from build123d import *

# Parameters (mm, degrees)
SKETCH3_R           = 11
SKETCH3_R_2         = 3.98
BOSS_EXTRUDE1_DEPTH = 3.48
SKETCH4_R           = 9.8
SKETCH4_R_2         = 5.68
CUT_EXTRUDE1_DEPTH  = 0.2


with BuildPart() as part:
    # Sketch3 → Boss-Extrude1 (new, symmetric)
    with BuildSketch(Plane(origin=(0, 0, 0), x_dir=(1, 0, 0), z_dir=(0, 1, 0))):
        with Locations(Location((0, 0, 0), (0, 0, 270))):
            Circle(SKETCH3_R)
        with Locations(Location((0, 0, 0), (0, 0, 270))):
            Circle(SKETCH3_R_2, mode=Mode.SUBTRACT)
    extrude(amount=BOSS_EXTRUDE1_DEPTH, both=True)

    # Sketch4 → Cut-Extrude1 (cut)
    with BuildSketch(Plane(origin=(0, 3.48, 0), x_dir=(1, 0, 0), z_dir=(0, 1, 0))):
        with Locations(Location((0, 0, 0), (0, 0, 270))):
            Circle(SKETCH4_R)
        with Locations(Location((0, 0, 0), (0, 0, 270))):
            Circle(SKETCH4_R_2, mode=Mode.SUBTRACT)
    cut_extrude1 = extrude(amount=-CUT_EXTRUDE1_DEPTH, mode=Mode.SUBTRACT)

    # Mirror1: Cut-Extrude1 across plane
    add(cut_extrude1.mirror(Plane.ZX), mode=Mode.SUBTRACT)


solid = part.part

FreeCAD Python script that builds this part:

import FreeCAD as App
import Part
import Sketcher

V = App.Vector

doc = App.newDocument("Part")
params = doc.addObject("Spreadsheet::Sheet", "Params")
for row, (alias, value) in enumerate([
    ("sketch1_diameter", "22 mm"),
    ("sketch1_diameter2", "7.96 mm"),
    ("pad1_length", "6.96 mm"),
    ("sketch2_diameter", "19.6 mm"),
    ("sketch2_diameter2", "11.36 mm"),
    ("pocket1_length", "0.2 mm"),
], start=1):
    params.set(f"A{row}", alias)
    params.set(f"B{row}", "=" + value)
    params.setAlias(f"B{row}", alias)

body = doc.addObject("PartDesign::Body", "Body")

sketch1 = doc.addObject("Sketcher::SketchObject", "Sketch")
body.addObject(sketch1)
sketch1.AttachmentSupport = (doc.XZ_Plane, [""])
sketch1.MapMode = "FlatFace"
sketch1.addGeometry(Part.Circle(V(0, 0, 0), V(0, 0, 1), 11), False)
sketch1.addGeometry(Part.Circle(V(0, 0, 0), V(0, 0, 1), 4), False)
sketch1.addConstraint(Sketcher.Constraint("Coincident", 0, 3, -1, 1))
sketch1.addConstraint(Sketcher.Constraint("Coincident", 1, 3, -1, 1))
sketch1.addConstraint(Sketcher.Constraint("Diameter", 0, 22.0))
sketch1.addConstraint(Sketcher.Constraint("Diameter", 1, 7.96))
sketch1.setExpression("Constraints[2]", "Params.sketch1_diameter")
sketch1.setExpression("Constraints[3]", "Params.sketch1_diameter2")
pad1 = doc.addObject("PartDesign::Pad", "Pad")
body.addObject(pad1)
pad1.Profile = sketch1
pad1.setExpression("Length", "Params.pad1_length")
pad1.Midplane = True

sketch2 = doc.addObject("Sketcher::SketchObject", "Sketch001")
body.addObject(sketch2)
sketch2.AttachmentSupport = (doc.XZ_Plane, [""])
sketch2.MapMode = "FlatFace"
sketch2.AttachmentOffset = App.Placement(V(0, 0, -3.48), App.Rotation())
sketch2.addGeometry(Part.Circle(V(0, 0, 0), V(0, 0, 1), 10), False)
sketch2.addGeometry(Part.Circle(V(0, 0, 0), V(0, 0, 1), 6), False)
sketch2.addConstraint(Sketcher.Constraint("Coincident", 0, 3, -1, 1))
sketch2.addConstraint(Sketcher.Constraint("Coincident", 1, 3, -1, 1))
sketch2.addConstraint(Sketcher.Constraint("Diameter", 0, 19.6))
sketch2.addConstraint(Sketcher.Constraint("Diameter", 1, 11.36))
sketch2.setExpression("Constraints[2]", "Params.sketch2_diameter")
sketch2.setExpression("Constraints[3]", "Params.sketch2_diameter2")
pocket1 = doc.addObject("PartDesign::Pocket", "Pocket")
body.addObject(pocket1)
pocket1.Profile = sketch2
pocket1.setExpression("Length", "Params.pocket1_length")
pocket1.Reversed = True
doc.recompute()

mirrored = doc.addObject("PartDesign::Mirrored", "Mirrored")
body.addObject(mirrored)
mirrored.Originals = [pocket1]
mirrored.MirrorPlane = (doc.XZ_Plane, [""])
body.Tip = mirrored

doc.recompute()
